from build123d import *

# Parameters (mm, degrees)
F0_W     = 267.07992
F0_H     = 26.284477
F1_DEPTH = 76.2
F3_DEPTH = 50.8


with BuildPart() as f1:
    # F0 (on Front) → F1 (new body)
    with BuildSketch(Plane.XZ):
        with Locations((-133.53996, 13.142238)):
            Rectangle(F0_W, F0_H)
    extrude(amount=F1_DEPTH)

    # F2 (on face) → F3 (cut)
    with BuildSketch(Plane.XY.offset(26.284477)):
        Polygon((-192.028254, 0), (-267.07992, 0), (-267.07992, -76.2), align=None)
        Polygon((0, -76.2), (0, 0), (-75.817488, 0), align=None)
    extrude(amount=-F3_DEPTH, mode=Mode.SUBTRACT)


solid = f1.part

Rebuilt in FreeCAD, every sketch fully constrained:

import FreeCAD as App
import Part
import Sketcher
Q = App.Units.Quantity

doc = App.newDocument("Part")
body = doc.addObject("PartDesign::Body", "Body")

# Sketch on XZ plane
sketch1 = body.newObject("Sketcher::SketchObject", "Sketch")
sketch1.AttachmentSupport = (doc.getObject("XZ_Plane"), [""])
sketch1.MapMode = "FlatFace"
sketch1.addGeometry([
    Part.LineSegment(App.Vector(-267.07992, 26.284477, 0), App.Vector(-267.07992, 0, 0)),
    Part.LineSegment(App.Vector(-267.07992, 0, 0), App.Vector(0, 0, 0)),
    Part.LineSegment(App.Vector(0, 0, 0), App.Vector(0, 26.284477, 0)),
    Part.LineSegment(App.Vector(0, 26.284477, 0), App.Vector(-267.07992, 26.284477, 0)),
], False)
sketch1.addConstraint([
    Sketcher.Constraint("Coincident", 0, 2, 1, 1),
    Sketcher.Constraint("Coincident", 1, 2, 2, 1),
    Sketcher.Constraint("Coincident", 2, 2, 3, 1),
    Sketcher.Constraint("Coincident", 3, 2, 0, 1),
    Sketcher.Constraint("Vertical", 0),
    Sketcher.Constraint("Horizontal", 1),
    Sketcher.Constraint("Vertical", 2),
    Sketcher.Constraint("Horizontal", 3),
    Sketcher.Constraint("Coincident", 1, 2, -1, 1),
    Sketcher.Constraint("DistanceX", 1, 1, 1, 2, Q("267.07992 mm")),
    Sketcher.Constraint("DistanceY", 0, 2, 0, 1, Q("26.284477 mm")),
])
pad1 = body.newObject("PartDesign::Pad", "Pad")
pad1.Profile = sketch1
pad1.Length = Q("3 in")

# Sketch on XY plane
sketch2 = body.newObject("Sketcher::SketchObject", "Sketch001")
sketch2.AttachmentSupport = (doc.getObject("XY_Plane"), [""])
sketch2.MapMode = "FlatFace"
sketch2.AttachmentOffset = App.Placement(App.Vector(0, 0, 26.284477), App.Rotation())
sketch2.addGeometry([
    Part.LineSegment(App.Vector(-192.028254, 0, 0), App.Vector(-267.07992, 0, 0)),  # 0
    Part.LineSegment(App.Vector(-267.07992, 0, 0), App.Vector(-267.07992, -76.2, 0)),  # 1
    Part.LineSegment(App.Vector(-267.07992, -76.2, 0), App.Vector(-192.028254, 0, 0)),  # 2
    Part.LineSegment(App.Vector(0, -76.2, 0), App.Vector(0, 0, 0)),  # 3
    Part.LineSegment(App.Vector(0, 0, 0), App.Vector(-75.817488, 0, 0)),  # 4
    Part.LineSegment(App.Vector(-75.817488, 0, 0), App.Vector(0, -76.2, 0)),  # 5
], False)
sketch2.addConstraint([
    Sketcher.Constraint("Coincident", 0, 2, 1, 1),
    Sketcher.Constraint("Coincident", 1, 2, 2, 1),
    Sketcher.Constraint("Coincident", 2, 2, 0, 1),
    Sketcher.Constraint("Coincident", 3, 2, 4, 1),
    Sketcher.Constraint("Coincident", 4, 2, 5, 1),
    Sketcher.Constraint("Coincident", 5, 2, 3, 1),
    Sketcher.Constraint("Horizontal", 0),
    Sketcher.Constraint("Vertical", 1),
    Sketcher.Constraint("Vertical", 3),
    Sketcher.Constraint("Horizontal", 4),
    Sketcher.Constraint("Coincident", 3, 2, -1, 1),
    Sketcher.Constraint("PointOnObject", 0, 2, -1),
    Sketcher.Constraint("Horizontal", 1, 2, 5, 2),
    Sketcher.Constraint("DistanceY", 1, 2, 1, 1, Q("3 in")),
    Sketcher.Constraint("Distance", 2, Q("106.954161 mm")),
    Sketcher.Constraint("DistanceX", 4, 2, 4, 1, Q("75.817488 mm")),
    Sketcher.Constraint("DistanceX", 0, 2, -1, 1, Q("267.07992 mm")),
])
pocket1 = body.newObject("PartDesign::Pocket", "Pocket")
pocket1.Profile = sketch2
pocket1.Length = Q("2 in")

doc.recompute()
